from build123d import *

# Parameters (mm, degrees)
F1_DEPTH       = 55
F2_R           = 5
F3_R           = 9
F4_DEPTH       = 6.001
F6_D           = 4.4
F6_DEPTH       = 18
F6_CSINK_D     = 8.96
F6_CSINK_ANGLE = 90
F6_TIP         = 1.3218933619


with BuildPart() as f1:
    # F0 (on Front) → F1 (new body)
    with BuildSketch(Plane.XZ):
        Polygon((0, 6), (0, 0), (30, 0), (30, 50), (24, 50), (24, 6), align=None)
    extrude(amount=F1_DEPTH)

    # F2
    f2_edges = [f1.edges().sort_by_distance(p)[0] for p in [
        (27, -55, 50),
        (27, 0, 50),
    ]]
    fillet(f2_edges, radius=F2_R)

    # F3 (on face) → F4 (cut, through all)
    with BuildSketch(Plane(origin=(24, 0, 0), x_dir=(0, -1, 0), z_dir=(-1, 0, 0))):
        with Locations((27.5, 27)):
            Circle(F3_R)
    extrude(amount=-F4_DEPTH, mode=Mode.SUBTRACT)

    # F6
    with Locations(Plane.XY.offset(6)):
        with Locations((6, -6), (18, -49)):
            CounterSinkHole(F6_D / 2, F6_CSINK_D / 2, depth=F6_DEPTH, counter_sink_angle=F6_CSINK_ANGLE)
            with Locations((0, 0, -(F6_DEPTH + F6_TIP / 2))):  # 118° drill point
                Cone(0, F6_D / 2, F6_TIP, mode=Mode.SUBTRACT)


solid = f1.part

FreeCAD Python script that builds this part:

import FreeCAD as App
import Part
import Sketcher

V = App.Vector


def edges_at(feature, points):
    """Names of the edges that pass closest to the given points."""
    edges = feature.Shape.Edges
    near = lambda p: min(range(len(edges)), key=lambda i: edges[i].distToShape(Part.Vertex(*p))[0])
    return sorted({f"Edge{near(p) + 1}" for p in points})

doc = App.newDocument("Part")
body = doc.addObject("PartDesign::Body", "Body")

# Sketch on XZ plane
sketch1 = body.newObject("Sketcher::SketchObject", "Sketch")
sketch1.AttachmentSupport = (doc.getObject("XZ_Plane"), [""])
sketch1.MapMode = "FlatFace"
sketch1.addGeometry([
    Part.LineSegment(V(0, 6, 0), V(0, 0, 0)),  # 0
    Part.LineSegment(V(0, 0, 0), V(30, 0, 0)),  # 1
    Part.LineSegment(V(30, 0, 0), V(30, 50, 0)),  # 2
    Part.LineSegment(V(30, 50, 0), V(24, 50, 0)),  # 3
    Part.LineSegment(V(24, 50, 0), V(24, 6, 0)),  # 4
    Part.LineSegment(V(24, 6, 0), V(0, 6, 0)),  # 5
], False)
sketch1.addConstraint([
    Sketcher.Constraint("Coincident", 0, 2, 1, 1),
    Sketcher.Constraint("Coincident", 1, 2, 2, 1),
    Sketcher.Constraint("Coincident", 2, 2, 3, 1),
    Sketcher.Constraint("Coincident", 3, 2, 4, 1),
    Sketcher.Constraint("Coincident", 4, 2, 5, 1),
    Sketcher.Constraint("Coincident", 5, 2, 0, 1),
    Sketcher.Constraint("Vertical", 0),
    Sketcher.Constraint("Horizontal", 1),
    Sketcher.Constraint("Vertical", 2),
    Sketcher.Constraint("Horizontal", 3),
    Sketcher.Constraint("Vertical", 4),
    Sketcher.Constraint("Horizontal", 5),
    Sketcher.Constraint("Coincident", 0, 2, -1, 1),
    Sketcher.Constraint("Equal", 3, 0),
    Sketcher.Constraint("DistanceX", 1, 1, 1, 2, 30.0),
    Sketcher.Constraint("DistanceX", 3, 2, 3, 1, 6.0),
    Sketcher.Constraint("DistanceY", 2, 1, 2, 2, 50.0),
])
pad1 = body.newObject("PartDesign::Pad", "Pad")
pad1.Profile = sketch1
pad1.Length = 55
doc.recompute()

fillet = body.newObject("PartDesign::Fillet", "Fillet")
fillet.Base = (pad1, edges_at(pad1, [(27, -55, 50), (27, 0, 50)]))
fillet.Radius = 5

# Sketch on YZ plane
sketch2 = body.newObject("Sketcher::SketchObject", "Sketch001")
sketch2.AttachmentSupport = (doc.getObject("YZ_Plane"), [""])
sketch2.MapMode = "FlatFace"
sketch2.AttachmentOffset = App.Placement(V(0, 0, 24), App.Rotation())
sketch2.addGeometry(Part.Circle(V(-27.5, 27, 0), V(0, 0, 1), 9), False)
sketch2.addConstraint([
    Sketcher.Constraint("Diameter", 0, 18.0),
    Sketcher.Constraint("DistanceY", -1, 1, 0, 3, 27.0),
    Sketcher.Constraint("DistanceX", 0, 3, -1, 1, 27.5),
])
pocket1 = body.newObject("PartDesign::Pocket", "Pocket")
pocket1.Profile = sketch2
pocket1.Type = "ThroughAll"
pocket1.Reversed = True

# Sketch on XY plane
sketch3 = body.newObject("Sketcher::SketchObject", "Sketch002")
sketch3.AttachmentSupport = (doc.getObject("XY_Plane"), [""])
sketch3.MapMode = "FlatFace"
sketch3.AttachmentOffset = App.Placement(V(0, 0, 6), App.Rotation())
sketch3.addGeometry([
    Part.Circle(V(6, -6, 0), V(0, 0, 1), 2.2),
    Part.Circle(V(18, -49, 0), V(0, 0, 1), 2.2),
], False)
sketch3.addConstraint([
    Sketcher.Constraint("Equal", 0, 1),
    Sketcher.Constraint("Diameter", 0, 4.4),
    Sketcher.Constraint("DistanceX", -1, 1, 0, 3, 6.0),
    Sketcher.Constraint("DistanceY", 0, 3, -1, 1, 6.0),
    Sketcher.Constraint("DistanceX", -1, 1, 1, 3, 18.0),
    Sketcher.Constraint("DistanceY", 1, 3, -1, 1, 49.0),
])
doc.recompute()
hole = body.newObject("PartDesign::Hole", "Hole")
hole.Profile = sketch3
hole.ThreadType = "None"
hole.Diameter = 4.4
hole.DepthType = "Dimension"
hole.Depth = 18
hole.DrillPoint = "Angled"
hole.DrillPointAngle = 118
hole.HoleCutType = "Countersink"
hole.HoleCutDiameter = 8.96
hole.HoleCutCountersinkAngle = 90

doc.recompute()
